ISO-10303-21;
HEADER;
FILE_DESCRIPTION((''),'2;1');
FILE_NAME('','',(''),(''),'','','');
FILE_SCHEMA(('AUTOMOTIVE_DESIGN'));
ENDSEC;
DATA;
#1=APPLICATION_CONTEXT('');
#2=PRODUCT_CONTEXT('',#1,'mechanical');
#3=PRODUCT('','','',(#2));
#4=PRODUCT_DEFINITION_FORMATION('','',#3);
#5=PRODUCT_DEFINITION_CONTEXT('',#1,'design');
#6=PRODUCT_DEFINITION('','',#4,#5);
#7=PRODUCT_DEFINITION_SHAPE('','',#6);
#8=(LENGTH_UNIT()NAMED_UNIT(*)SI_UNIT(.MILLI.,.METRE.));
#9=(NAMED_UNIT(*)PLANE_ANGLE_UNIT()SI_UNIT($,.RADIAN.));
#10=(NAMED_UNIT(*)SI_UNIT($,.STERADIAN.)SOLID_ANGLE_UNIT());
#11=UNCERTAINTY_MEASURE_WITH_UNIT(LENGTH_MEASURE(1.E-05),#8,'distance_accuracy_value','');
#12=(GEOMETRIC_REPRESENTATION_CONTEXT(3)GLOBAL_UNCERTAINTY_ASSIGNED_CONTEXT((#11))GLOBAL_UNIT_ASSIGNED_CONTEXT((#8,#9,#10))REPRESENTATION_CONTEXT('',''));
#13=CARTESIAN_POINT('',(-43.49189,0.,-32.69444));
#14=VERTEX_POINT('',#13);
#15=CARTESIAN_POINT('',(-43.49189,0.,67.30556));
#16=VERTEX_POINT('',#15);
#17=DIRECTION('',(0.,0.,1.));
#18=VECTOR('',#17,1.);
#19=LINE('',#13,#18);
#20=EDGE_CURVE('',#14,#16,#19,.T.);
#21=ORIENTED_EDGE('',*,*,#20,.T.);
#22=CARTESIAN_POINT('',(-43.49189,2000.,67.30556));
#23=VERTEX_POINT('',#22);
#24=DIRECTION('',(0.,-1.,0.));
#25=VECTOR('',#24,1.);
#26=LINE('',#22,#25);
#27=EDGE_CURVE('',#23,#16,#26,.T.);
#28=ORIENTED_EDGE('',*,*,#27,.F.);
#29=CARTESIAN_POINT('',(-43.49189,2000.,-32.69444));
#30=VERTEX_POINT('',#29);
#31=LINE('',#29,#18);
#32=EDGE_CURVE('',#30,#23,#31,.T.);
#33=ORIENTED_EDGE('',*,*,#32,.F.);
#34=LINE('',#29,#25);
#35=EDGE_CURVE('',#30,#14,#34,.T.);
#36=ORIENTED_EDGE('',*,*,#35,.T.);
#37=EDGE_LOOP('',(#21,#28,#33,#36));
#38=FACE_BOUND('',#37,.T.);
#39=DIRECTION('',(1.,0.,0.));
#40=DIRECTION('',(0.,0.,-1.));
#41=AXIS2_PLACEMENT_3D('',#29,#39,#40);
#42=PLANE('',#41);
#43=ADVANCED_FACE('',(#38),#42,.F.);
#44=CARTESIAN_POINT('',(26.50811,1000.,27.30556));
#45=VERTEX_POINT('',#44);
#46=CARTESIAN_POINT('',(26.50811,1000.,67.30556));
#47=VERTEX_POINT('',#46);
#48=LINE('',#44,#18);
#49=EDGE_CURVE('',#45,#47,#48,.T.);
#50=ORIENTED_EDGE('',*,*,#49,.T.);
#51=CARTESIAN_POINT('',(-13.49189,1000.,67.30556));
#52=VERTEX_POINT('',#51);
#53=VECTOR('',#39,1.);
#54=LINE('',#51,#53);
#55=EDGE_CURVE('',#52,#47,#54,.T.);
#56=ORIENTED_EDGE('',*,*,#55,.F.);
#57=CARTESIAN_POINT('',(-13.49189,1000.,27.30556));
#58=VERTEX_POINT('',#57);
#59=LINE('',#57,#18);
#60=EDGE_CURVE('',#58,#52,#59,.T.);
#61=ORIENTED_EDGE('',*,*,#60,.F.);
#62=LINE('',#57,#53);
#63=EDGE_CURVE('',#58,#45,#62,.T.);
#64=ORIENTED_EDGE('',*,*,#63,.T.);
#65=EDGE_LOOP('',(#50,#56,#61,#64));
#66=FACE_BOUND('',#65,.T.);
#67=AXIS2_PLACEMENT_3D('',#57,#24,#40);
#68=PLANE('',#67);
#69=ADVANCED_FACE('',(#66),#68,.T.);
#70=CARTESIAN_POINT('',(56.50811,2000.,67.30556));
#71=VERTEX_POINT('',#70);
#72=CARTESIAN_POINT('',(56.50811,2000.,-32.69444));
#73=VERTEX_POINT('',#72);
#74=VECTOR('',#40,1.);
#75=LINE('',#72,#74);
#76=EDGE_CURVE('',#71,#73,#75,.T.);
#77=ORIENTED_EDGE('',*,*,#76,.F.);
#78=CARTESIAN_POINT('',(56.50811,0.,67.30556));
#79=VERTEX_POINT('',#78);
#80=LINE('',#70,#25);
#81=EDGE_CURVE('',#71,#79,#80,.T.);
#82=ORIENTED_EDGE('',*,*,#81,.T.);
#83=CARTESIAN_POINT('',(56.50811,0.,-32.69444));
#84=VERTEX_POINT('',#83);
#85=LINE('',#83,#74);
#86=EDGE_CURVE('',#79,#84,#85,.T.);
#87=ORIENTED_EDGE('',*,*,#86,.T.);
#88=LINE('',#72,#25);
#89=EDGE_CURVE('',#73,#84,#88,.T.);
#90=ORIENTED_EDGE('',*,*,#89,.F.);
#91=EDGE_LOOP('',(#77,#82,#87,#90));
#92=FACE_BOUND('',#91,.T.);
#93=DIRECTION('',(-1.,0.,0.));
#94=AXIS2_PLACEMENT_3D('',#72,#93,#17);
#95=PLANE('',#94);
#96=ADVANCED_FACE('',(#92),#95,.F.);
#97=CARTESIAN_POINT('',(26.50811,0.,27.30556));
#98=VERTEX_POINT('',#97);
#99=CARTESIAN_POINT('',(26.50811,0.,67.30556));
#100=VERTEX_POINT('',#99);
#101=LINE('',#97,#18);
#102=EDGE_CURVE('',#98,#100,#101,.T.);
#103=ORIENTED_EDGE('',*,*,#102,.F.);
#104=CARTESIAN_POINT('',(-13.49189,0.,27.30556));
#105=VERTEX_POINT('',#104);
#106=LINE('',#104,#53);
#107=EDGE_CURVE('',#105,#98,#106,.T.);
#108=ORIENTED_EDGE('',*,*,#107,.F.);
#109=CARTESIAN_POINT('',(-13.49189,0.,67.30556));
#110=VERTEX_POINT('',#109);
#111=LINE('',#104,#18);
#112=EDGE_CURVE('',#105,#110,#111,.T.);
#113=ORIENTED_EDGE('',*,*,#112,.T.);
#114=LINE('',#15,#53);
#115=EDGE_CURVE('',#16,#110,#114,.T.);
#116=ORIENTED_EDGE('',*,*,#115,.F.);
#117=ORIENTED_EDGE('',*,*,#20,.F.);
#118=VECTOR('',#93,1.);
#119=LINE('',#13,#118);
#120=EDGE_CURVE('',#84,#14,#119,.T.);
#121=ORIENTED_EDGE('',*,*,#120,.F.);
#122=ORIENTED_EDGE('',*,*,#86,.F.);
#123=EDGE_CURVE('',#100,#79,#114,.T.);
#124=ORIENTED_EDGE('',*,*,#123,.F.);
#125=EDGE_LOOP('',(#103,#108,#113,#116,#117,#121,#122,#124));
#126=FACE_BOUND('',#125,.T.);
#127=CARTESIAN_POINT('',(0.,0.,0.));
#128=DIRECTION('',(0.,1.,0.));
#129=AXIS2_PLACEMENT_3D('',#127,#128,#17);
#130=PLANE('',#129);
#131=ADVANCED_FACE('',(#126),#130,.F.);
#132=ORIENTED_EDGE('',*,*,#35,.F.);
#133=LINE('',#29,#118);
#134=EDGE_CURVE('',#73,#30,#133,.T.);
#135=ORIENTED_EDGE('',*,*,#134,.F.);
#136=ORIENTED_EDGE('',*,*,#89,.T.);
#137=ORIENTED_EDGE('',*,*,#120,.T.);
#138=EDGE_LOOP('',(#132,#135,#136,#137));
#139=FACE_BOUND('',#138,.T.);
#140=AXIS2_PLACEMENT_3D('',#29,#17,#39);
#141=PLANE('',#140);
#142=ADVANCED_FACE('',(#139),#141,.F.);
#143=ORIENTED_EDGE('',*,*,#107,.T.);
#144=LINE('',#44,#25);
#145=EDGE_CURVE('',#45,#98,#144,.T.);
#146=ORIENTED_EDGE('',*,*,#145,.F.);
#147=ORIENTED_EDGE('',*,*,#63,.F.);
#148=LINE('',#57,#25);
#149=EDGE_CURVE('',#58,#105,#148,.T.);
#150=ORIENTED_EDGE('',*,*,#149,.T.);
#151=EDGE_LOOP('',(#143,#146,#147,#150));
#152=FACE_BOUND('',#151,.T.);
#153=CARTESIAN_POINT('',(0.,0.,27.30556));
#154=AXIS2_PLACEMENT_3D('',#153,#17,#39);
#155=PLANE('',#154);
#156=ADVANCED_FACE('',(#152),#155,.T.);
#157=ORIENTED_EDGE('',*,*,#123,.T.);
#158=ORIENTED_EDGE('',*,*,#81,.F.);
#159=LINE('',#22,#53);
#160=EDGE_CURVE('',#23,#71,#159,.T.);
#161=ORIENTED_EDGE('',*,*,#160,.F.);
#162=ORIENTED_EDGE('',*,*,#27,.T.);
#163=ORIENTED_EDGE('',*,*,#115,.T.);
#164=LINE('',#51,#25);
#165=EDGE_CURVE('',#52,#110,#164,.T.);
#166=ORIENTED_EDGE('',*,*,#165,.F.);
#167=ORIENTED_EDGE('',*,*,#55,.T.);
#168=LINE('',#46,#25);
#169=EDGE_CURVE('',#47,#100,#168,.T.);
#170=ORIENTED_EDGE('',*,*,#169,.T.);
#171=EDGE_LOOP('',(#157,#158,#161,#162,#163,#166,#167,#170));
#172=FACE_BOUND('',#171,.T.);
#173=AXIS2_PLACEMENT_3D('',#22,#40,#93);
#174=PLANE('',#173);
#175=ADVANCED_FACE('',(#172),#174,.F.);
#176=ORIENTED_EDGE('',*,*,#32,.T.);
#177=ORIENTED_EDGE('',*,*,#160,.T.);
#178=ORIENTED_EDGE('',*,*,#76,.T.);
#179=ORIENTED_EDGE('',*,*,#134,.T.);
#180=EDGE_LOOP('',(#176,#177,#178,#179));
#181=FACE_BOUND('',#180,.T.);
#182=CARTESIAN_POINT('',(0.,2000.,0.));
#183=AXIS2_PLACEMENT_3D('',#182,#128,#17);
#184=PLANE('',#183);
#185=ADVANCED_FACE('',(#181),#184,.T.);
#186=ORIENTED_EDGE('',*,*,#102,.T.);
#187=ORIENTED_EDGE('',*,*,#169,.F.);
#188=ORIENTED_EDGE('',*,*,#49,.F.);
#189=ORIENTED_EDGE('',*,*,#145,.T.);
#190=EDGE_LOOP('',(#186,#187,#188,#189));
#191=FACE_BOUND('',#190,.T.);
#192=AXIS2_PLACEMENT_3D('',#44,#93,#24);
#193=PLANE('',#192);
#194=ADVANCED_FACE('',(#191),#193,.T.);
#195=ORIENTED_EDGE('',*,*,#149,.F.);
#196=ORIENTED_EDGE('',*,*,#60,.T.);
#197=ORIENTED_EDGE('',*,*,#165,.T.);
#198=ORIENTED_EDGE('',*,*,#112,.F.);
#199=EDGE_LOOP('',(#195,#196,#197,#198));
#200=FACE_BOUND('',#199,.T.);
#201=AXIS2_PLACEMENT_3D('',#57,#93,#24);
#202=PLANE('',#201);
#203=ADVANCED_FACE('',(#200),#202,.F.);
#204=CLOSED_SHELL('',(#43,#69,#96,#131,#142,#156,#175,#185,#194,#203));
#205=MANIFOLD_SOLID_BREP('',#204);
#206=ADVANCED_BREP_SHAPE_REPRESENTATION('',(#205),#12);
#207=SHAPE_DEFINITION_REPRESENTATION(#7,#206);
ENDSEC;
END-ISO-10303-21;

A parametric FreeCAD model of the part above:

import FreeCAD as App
import Part
import Sketcher
from FreeCAD import Vector

doc = App.newDocument("Part")
params = doc.addObject("Spreadsheet::Sheet", "Params")
for row, (alias, value) in enumerate([
    ("sketch1_width", "100 mm"),
    ("pad1_length", "2000 mm"),
    ("sketch2_width", "40 mm"),
    ("sketch2_height", "1000 mm"),
    ("pocket1_length", "40 mm"),
], start=1):
    params.set(f"A{row}", alias)
    params.set(f"B{row}", "=" + value)
    params.setAlias(f"B{row}", alias)

body = doc.addObject("PartDesign::Body", "Body")

sketch1 = doc.addObject("Sketcher::SketchObject", "Sketch")
body.addObject(sketch1)
sketch1.AttachmentSupport = (doc.XZ_Plane, [""])
sketch1.MapMode = "FlatFace"
sketch1.addGeometry([
    Part.LineSegment(Vector(-43, -33, 0), Vector(-43, 67, 0)),
    Part.LineSegment(Vector(-43, 67, 0), Vector(57, 67, 0)),
    Part.LineSegment(Vector(57, 67, 0), Vector(57, -33, 0)),
    Part.LineSegment(Vector(57, -33, 0), Vector(-43, -33, 0)),
], False)
sketch1.addConstraint([
    Sketcher.Constraint("Coincident", 0, 2, 1, 1),
    Sketcher.Constraint("Coincident", 1, 2, 2, 1),
    Sketcher.Constraint("Coincident", 2, 2, 3, 1),
    Sketcher.Constraint("Coincident", 3, 2, 0, 1),
    Sketcher.Constraint("Vertical", 0),
    Sketcher.Constraint("Horizontal", 1),
    Sketcher.Constraint("Vertical", 2),
    Sketcher.Constraint("Horizontal", 3),
    Sketcher.Constraint("Equal", 3, 0),
    Sketcher.Constraint("DistanceX", 1, 1, 1, 2, 100.0),
    Sketcher.Constraint("DistanceX", 0, 2, -1, 1, 43.49189),
    Sketcher.Constraint("DistanceY", -1, 1, 0, 2, 67.30556),
])
sketch1.setExpression("Constraints[9]", "Params.sketch1_width")
pad1 = doc.addObject("PartDesign::Pad", "Pad")
body.addObject(pad1)
pad1.Profile = sketch1
pad1.setExpression("Length", "Params.pad1_length")
pad1.Reversed = True

sketch2 = doc.addObject("Sketcher::SketchObject", "Sketch001")
body.addObject(sketch2)
sketch2.AttachmentSupport = (doc.XY_Plane, [""])
sketch2.MapMode = "FlatFace"
sketch2.AttachmentOffset = App.Placement(Vector(0, 0, 67.30556), App.Rotation())
sketch2.addGeometry([
    Part.LineSegment(Vector(-13, 1000, 0), Vector(-13, 0, 0)),
    Part.LineSegment(Vector(-13, 0, 0), Vector(27, 0, 0)),
    Part.LineSegment(Vector(27, 0, 0), Vector(27, 1000, 0)),
    Part.LineSegment(Vector(27, 1000, 0), Vector(-13, 1000, 0)),
], False)
sketch2.addConstraint([
    Sketcher.Constraint("Coincident", 0, 2, 1, 1),
    Sketcher.Constraint("Coincident", 1, 2, 2, 1),
    Sketcher.Constraint("Coincident", 2, 2, 3, 1),
    Sketcher.Constraint("Coincident", 3, 2, 0, 1),
    Sketcher.Constraint("Vertical", 0),
    Sketcher.Constraint("Horizontal", 1),
    Sketcher.Constraint("Vertical", 2),
    Sketcher.Constraint("Horizontal", 3),
    Sketcher.Constraint("PointOnObject", 0, 2, -1),
    Sketcher.Constraint("DistanceX", 1, 1, 1, 2, 40.0),
    Sketcher.Constraint("DistanceY", 0, 2, 0, 1, 1000.0),
    Sketcher.Constraint("DistanceX", 0, 2, -1, 1, 13.49189),
])
sketch2.setExpression("Constraints[9]", "Params.sketch2_width")
sketch2.setExpression("Constraints[10]", "Params.sketch2_height")
pocket1 = doc.addObject("PartDesign::Pocket", "Pocket")
body.addObject(pocket1)
pocket1.Profile = sketch2
pocket1.setExpression("Length", "Params.pocket1_length")

doc.recompute()
